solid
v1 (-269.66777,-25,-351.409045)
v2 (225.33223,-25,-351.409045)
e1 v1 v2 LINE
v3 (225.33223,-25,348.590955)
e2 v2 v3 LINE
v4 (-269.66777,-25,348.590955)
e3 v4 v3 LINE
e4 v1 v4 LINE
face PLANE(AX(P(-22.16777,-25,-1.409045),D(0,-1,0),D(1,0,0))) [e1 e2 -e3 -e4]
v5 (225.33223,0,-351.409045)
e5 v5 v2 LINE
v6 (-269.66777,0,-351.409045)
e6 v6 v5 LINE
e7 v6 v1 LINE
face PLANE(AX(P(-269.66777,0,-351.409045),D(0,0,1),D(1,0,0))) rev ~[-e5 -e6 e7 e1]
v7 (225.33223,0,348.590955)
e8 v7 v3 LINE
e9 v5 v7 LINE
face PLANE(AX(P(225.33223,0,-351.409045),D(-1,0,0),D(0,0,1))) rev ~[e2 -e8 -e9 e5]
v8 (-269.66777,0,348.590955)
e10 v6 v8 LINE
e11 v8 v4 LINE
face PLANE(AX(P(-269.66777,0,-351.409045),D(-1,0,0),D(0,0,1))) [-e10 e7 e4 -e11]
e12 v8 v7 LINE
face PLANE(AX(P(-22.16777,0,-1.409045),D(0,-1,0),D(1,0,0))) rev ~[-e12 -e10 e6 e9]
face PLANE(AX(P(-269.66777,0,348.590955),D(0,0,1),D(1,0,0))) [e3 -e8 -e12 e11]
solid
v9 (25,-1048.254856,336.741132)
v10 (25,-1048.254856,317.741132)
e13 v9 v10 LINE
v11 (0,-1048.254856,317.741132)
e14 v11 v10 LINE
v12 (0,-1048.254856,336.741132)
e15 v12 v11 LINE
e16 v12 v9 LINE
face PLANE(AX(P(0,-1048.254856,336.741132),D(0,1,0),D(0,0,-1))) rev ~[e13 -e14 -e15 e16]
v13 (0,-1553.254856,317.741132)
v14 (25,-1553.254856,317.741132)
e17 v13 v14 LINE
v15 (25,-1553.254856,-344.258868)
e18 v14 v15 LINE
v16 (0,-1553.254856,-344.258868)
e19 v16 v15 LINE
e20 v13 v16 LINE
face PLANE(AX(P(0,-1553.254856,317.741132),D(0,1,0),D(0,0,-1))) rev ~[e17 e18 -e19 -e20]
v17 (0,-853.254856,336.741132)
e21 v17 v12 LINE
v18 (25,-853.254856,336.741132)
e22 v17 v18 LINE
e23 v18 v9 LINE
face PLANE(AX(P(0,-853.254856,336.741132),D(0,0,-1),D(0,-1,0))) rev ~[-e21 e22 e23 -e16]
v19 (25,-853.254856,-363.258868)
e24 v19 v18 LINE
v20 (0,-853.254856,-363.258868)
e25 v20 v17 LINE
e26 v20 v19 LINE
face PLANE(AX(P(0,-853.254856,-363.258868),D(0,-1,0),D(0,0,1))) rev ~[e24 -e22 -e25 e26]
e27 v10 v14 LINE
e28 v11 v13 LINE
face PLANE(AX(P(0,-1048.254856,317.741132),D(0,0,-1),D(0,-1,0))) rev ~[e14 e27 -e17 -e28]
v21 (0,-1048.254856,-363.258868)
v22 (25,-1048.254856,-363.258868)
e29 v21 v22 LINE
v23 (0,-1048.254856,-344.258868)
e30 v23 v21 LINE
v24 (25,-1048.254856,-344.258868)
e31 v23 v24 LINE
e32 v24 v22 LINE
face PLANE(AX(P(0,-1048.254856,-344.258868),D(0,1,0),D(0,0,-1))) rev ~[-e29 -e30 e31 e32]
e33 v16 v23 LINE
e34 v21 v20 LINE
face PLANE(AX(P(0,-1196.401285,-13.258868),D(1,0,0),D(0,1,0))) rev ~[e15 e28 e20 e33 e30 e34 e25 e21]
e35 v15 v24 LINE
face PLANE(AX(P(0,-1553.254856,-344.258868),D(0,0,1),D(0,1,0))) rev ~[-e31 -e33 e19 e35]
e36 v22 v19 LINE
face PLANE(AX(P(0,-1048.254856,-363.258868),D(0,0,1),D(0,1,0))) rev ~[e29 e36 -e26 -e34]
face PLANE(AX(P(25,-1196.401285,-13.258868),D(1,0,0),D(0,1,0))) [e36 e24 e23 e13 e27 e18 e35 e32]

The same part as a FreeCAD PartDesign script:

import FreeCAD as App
import Part
import Sketcher
Q = App.Units.Quantity


def add_polygon(sketch, points):
    """Adds a closed chain of lines whose ends are joined by coincident constraints."""
    first, n = sketch.GeometryCount, len(points)
    for a, b in zip(points, points[1:] + points[:1]):
        sketch.addGeometry(Part.LineSegment(App.Vector(*a, 0), App.Vector(*b, 0)), False)
    for i in range(n):
        sketch.addConstraint(Sketcher.Constraint("Coincident", first + i, 2, first + (i + 1) % n, 1))

doc = App.newDocument("Part")
body = doc.addObject("PartDesign::Body", "Body")

# Sketch on XZ plane
sketch1 = body.newObject("Sketcher::SketchObject", "Sketch")
sketch1.AttachmentSupport = (doc.getObject("XZ_Plane"), [""])
sketch1.MapMode = "FlatFace"
add_polygon(sketch1, [(-270, 349), (-270, -351), (225, -351), (225, 349)])  # lines 0-3
sketch1.addConstraint([
    Sketcher.Constraint("Vertical", 0),
    Sketcher.Constraint("Horizontal", 1),
    Sketcher.Constraint("Vertical", 2),
    Sketcher.Constraint("Horizontal", 3),
    Sketcher.Constraint("DistanceX", 1, 1, 1, 2, Q("495 mm")),
    Sketcher.Constraint("DistanceY", 0, 2, 0, 1, Q("700 mm")),
    Sketcher.Constraint("DistanceX", 0, 2, -1, 1, Q("269.66777 mm")),
    Sketcher.Constraint("DistanceY", 0, 2, -1, 1, Q("351.409045 mm")),
])
pad1 = body.newObject("PartDesign::Pad", "Pad")
pad1.Profile = sketch1
pad1.Length = 25
body2 = doc.addObject("PartDesign::Body", "Body001")

# Sketch on YZ plane
sketch2 = body2.newObject("Sketcher::SketchObject", "Sketch001")
sketch2.AttachmentSupport = (doc.getObject("YZ_Plane001"), [""])
sketch2.MapMode = "FlatFace"
add_polygon(sketch2, [(-853, -363), (-853, 337), (-1048, 337), (-1048, 318), (-1553, 318), (-1553, -344), (-1048, -344), (-1048, -363)])  # lines 0-7
sketch2.addConstraint([
    Sketcher.Constraint("Vertical", 0),
    Sketcher.Constraint("Horizontal", 1),
    Sketcher.Constraint("Vertical", 2),
    Sketcher.Constraint("Horizontal", 3),
    Sketcher.Constraint("Vertical", 4),
    Sketcher.Constraint("Horizontal", 5),
    Sketcher.Constraint("Vertical", 6),
    Sketcher.Constraint("Horizontal", 7),
    Sketcher.Constraint("Vertical", 2, 2, 5, 2),
    Sketcher.Constraint("Equal", 2, 6),
    Sketcher.Constraint("DistanceX", 1, 2, 1, 1, Q("195 mm")),
    Sketcher.Constraint("DistanceX", 3, 2, 3, 1, Q("505 mm")),
    Sketcher.Constraint("DistanceY", 0, 1, 0, 2, Q("700 mm")),
    Sketcher.Constraint("DistanceY", 2, 2, 2, 1, Q("19 mm")),
    Sketcher.Constraint("DistanceY", -1, 1, 0, 2, Q("336.741132 mm")),
    Sketcher.Constraint("DistanceX", 0, 2, -1, 1, Q("853.254856 mm")),
])
pad2 = body2.newObject("PartDesign::Pad", "Pad001")
pad2.Profile = sketch2
pad2.Length = 25

doc.recompute()
